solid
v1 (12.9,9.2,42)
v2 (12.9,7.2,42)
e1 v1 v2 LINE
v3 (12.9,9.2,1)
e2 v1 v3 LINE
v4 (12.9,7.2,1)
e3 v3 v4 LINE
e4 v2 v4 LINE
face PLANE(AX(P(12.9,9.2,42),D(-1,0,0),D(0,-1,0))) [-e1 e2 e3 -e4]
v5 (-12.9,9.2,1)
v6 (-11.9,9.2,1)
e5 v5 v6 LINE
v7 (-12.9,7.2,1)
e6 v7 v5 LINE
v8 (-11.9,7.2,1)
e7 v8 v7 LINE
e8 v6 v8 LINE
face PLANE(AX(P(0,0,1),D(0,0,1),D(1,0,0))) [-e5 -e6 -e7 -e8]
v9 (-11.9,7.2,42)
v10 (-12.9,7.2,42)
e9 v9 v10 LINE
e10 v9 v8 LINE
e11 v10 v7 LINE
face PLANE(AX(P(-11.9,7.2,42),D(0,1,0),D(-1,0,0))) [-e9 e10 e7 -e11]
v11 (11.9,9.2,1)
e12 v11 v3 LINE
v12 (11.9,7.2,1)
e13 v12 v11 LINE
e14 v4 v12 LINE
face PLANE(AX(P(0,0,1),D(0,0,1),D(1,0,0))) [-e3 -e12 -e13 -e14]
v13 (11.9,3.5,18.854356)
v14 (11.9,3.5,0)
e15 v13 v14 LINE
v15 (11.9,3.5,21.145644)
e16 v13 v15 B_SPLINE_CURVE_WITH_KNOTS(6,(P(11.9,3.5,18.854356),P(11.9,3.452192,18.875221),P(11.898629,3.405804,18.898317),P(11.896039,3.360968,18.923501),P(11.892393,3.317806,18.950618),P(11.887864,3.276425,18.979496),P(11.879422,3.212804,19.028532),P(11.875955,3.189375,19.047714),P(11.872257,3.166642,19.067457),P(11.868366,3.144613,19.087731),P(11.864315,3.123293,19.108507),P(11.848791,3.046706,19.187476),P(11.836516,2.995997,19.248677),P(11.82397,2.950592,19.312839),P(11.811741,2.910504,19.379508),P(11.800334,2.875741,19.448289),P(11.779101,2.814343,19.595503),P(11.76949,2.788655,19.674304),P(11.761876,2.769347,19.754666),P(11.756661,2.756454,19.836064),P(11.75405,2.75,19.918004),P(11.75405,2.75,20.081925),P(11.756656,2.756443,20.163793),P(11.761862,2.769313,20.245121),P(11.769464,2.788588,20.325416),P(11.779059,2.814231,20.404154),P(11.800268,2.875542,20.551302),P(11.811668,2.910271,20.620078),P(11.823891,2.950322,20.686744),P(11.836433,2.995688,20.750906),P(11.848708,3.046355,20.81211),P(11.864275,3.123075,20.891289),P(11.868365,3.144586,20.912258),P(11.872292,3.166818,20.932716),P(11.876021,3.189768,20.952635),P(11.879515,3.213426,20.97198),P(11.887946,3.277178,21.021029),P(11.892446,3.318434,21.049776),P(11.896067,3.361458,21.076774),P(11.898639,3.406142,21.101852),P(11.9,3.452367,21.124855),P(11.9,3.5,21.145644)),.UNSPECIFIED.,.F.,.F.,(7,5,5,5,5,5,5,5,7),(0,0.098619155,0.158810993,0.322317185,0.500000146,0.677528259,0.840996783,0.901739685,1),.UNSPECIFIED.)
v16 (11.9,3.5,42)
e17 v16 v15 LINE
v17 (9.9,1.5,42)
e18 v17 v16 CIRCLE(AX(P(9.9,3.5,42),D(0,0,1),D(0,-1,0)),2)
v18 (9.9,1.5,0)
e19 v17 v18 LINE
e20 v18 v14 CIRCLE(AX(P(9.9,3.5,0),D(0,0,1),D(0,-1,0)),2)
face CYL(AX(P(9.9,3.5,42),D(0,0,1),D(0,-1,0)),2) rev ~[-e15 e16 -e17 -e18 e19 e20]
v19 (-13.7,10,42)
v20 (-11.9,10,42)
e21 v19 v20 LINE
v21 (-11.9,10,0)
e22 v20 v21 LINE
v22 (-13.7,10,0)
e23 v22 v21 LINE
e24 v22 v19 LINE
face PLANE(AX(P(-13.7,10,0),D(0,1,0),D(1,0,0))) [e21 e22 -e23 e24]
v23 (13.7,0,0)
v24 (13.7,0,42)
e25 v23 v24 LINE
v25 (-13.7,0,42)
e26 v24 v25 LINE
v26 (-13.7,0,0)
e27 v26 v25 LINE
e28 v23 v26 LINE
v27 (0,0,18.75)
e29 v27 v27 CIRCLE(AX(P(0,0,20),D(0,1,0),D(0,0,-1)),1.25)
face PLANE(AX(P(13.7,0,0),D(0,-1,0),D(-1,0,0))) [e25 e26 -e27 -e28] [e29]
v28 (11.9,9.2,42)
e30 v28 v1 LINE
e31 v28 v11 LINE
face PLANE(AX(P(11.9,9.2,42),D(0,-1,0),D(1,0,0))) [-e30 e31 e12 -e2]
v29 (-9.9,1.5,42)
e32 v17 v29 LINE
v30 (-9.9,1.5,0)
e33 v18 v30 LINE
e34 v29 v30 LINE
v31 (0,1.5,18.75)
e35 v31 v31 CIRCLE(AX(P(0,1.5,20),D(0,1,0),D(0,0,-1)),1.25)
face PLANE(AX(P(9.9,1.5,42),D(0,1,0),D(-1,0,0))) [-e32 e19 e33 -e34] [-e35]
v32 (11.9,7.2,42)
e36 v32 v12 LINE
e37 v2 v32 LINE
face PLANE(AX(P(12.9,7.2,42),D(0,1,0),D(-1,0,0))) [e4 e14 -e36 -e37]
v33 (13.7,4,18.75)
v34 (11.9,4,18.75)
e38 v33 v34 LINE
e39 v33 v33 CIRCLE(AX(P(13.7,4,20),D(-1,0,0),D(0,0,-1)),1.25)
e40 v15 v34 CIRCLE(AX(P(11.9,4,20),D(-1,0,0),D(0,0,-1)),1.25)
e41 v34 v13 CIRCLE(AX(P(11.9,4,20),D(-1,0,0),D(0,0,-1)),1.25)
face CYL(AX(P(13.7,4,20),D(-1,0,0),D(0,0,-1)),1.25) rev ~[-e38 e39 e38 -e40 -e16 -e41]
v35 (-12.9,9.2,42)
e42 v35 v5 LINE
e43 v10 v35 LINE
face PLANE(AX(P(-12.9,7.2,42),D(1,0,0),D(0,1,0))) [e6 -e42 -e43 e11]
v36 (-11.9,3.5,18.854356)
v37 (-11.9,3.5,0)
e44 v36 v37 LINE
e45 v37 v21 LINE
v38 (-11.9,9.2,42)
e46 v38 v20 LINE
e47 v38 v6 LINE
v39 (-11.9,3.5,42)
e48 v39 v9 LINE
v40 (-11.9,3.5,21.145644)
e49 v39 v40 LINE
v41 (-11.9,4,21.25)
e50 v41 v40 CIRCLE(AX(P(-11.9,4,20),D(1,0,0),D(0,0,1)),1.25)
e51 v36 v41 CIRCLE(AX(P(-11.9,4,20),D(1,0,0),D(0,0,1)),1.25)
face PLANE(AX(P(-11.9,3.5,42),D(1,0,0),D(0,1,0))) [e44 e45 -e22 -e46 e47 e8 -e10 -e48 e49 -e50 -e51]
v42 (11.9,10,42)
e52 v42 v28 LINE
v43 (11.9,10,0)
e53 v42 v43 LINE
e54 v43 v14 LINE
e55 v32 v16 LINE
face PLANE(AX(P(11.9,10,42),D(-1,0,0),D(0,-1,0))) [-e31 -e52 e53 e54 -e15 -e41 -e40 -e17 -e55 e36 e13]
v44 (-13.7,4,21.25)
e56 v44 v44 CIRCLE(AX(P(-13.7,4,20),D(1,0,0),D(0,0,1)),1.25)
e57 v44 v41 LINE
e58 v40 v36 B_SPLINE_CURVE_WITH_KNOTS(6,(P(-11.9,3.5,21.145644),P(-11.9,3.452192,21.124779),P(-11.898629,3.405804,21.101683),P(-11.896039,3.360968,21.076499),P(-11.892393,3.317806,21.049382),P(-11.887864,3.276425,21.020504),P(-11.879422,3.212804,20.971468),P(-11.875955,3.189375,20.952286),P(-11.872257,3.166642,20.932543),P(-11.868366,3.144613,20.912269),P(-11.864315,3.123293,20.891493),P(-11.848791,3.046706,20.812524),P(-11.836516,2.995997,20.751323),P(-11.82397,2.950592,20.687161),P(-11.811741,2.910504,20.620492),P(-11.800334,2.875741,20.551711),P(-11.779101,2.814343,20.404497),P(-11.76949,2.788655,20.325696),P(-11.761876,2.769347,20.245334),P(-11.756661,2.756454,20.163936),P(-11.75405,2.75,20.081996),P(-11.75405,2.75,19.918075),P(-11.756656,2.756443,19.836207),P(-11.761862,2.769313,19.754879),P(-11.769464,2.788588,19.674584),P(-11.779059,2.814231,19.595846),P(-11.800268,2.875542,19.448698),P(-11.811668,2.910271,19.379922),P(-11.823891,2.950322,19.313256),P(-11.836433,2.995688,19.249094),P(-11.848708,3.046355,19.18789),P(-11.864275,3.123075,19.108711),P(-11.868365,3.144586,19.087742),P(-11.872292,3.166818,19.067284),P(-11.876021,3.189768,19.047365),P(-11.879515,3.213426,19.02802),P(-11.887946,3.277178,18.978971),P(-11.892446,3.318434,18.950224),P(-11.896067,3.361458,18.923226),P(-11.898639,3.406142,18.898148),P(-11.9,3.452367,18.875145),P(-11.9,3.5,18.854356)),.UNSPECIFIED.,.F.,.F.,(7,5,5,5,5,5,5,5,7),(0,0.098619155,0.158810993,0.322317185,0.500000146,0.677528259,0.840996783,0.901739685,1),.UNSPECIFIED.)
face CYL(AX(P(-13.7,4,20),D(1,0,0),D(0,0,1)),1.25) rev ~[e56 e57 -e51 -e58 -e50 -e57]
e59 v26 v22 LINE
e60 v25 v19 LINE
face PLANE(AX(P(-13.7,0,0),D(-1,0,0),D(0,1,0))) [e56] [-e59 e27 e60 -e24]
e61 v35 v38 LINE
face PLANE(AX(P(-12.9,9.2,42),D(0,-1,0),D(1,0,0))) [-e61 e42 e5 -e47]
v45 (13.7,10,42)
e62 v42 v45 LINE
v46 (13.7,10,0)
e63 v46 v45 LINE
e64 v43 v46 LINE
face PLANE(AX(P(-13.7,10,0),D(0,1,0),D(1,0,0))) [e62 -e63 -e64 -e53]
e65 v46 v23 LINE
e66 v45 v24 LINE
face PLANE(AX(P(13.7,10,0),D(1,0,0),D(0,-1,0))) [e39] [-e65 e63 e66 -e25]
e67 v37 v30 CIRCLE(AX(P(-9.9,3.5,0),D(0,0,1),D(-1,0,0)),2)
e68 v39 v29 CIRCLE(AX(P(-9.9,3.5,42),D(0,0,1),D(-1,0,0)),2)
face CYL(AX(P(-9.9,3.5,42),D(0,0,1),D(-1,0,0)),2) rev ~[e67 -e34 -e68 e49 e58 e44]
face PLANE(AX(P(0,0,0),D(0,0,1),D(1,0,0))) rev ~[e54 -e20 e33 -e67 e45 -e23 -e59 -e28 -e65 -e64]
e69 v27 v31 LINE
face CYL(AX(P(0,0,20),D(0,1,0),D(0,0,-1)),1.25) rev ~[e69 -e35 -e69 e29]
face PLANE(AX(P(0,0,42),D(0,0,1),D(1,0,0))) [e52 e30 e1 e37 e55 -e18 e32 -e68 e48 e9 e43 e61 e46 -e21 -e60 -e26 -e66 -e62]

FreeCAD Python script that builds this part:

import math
import FreeCAD as App
import Part
import Sketcher


def add_polygon(sketch, points):
    """Adds a closed chain of lines whose ends are joined by coincident constraints."""
    first, n = sketch.GeometryCount, len(points)
    for a, b in zip(points, points[1:] + points[:1]):
        sketch.addGeometry(Part.LineSegment(App.Vector(*a, 0), App.Vector(*b, 0)), False)
    for i in range(n):
        sketch.addConstraint(Sketcher.Constraint("Coincident", first + i, 2, first + (i + 1) % n, 1))

doc = App.newDocument("Part")
body = doc.addObject("PartDesign::Body", "Body")

# Sketch on XY plane
sketch1 = doc.addObject("Sketcher::SketchObject", "Sketch")
body.addObject(sketch1)
sketch1.AttachmentSupport = (doc.XY_Plane, [""])
sketch1.MapMode = "FlatFace"
add_polygon(sketch1, [(13.7, 10), (-13.7, 10), (-13.7, 0), (13.7, 0)])  # lines 0-3
sketch1.addConstraint([
    Sketcher.Constraint("Horizontal", 0),
    Sketcher.Constraint("Vertical", 1),
    Sketcher.Constraint("Horizontal", 2),
    Sketcher.Constraint("Vertical", 3),
    Sketcher.Constraint("Symmetric", 1, 2, 2, 2, -1, 1),
    Sketcher.Constraint("DistanceY", 1, 2, 1, 1, 10.0),
    Sketcher.Constraint("DistanceX", 0, 2, 0, 1, 27.4),
])
pad1 = doc.addObject("PartDesign::Pad", "Pad")
body.addObject(pad1)
pad1.Profile = sketch1
pad1.Length = 42

# Sketch on XY plane
sketch2 = doc.addObject("Sketcher::SketchObject", "Sketch001")
body.addObject(sketch2)
sketch2.AttachmentSupport = (doc.XY_Plane, [""])
sketch2.MapMode = "FlatFace"
sketch2.AttachmentOffset = App.Placement(App.Vector(0, 0, 42), App.Rotation())
sketch2.addGeometry([
    Part.LineSegment(App.Vector(11.9, 10, 0), App.Vector(-11.9, 10, 0)),  # 0
    Part.LineSegment(App.Vector(-11.9, 10, 0), App.Vector(-11.9, 3.5, 0)),  # 1
    Part.ArcOfCircle(Part.Circle(App.Vector(-9.9, 3.5, 0), App.Vector(0, 0, 1), 2), math.radians(180), math.radians(270)),  # 2
    Part.LineSegment(App.Vector(-9.9, 1.5, 0), App.Vector(9.9, 1.5, 0)),  # 3
    Part.ArcOfCircle(Part.Circle(App.Vector(9.9, 3.5, 0), App.Vector(0, 0, 1), 2), math.radians(-90), math.radians(0)),  # 4
    Part.LineSegment(App.Vector(11.9, 3.5, 0), App.Vector(11.9, 10, 0)),  # 5
], False)
sketch2.addConstraint([
    Sketcher.Constraint("Coincident", 0, 2, 1, 1),
    Sketcher.Constraint("Tangent", 1, 2, 2, 1),
    Sketcher.Constraint("Tangent", 2, 2, 3, 1),
    Sketcher.Constraint("Tangent", 3, 2, 4, 1),
    Sketcher.Constraint("Tangent", 4, 2, 5, 1),
    Sketcher.Constraint("Coincident", 5, 2, 0, 1),
    Sketcher.Constraint("Horizontal", 0),
    Sketcher.Constraint("Vertical", 1),
    Sketcher.Constraint("Horizontal", 3),
    Sketcher.Constraint("Vertical", 5),
    Sketcher.Constraint("Equal", 2, 4),
    Sketcher.Constraint("Radius", 2, 2.0),
    Sketcher.Constraint("DistanceX", 0, 2, 0, 1, 23.8),
    Sketcher.Constraint("DistanceY", 2, 2, 0, 2, 8.5),
    Sketcher.Constraint("DistanceY", -1, 1, 0, 2, 10.0),
    Sketcher.Constraint("DistanceX", 2, 3, -1, 1, 9.9),
])
pocket1 = doc.addObject("PartDesign::Pocket", "Pocket")
body.addObject(pocket1)
pocket1.Profile = sketch2
pocket1.Length = 42

# Sketch on XY plane
sketch3 = doc.addObject("Sketcher::SketchObject", "Sketch002")
body.addObject(sketch3)
sketch3.AttachmentSupport = (doc.XY_Plane, [""])
sketch3.MapMode = "FlatFace"
sketch3.AttachmentOffset = App.Placement(App.Vector(0, 0, 42), App.Rotation())
add_polygon(sketch3, [(-11.9, 9.2), (-12.9, 9.2), (-12.9, 7.2), (-11.9, 7.2)])  # lines 0-3
sketch3.addConstraint([
    Sketcher.Constraint("Horizontal", 0),
    Sketcher.Constraint("Vertical", 1),
    Sketcher.Constraint("Horizontal", 2),
    Sketcher.Constraint("Vertical", 3),
    Sketcher.Constraint("DistanceY", 1, 2, 1, 1, 2.0),
    Sketcher.Constraint("DistanceX", 0, 2, 0, 1, 1.0),
    Sketcher.Constraint("DistanceX", 0, 2, -1, 1, 12.9),
    Sketcher.Constraint("DistanceY", -1, 1, 0, 2, 9.2),
])
pocket2 = doc.addObject("PartDesign::Pocket", "Pocket001")
body.addObject(pocket2)
pocket2.Profile = sketch3
pocket2.Length = 41

# Sketch on XY plane
sketch4 = doc.addObject("Sketcher::SketchObject", "Sketch003")
body.addObject(sketch4)
sketch4.AttachmentSupport = (doc.XY_Plane, [""])
sketch4.MapMode = "FlatFace"
sketch4.AttachmentOffset = App.Placement(App.Vector(0, 0, 42), App.Rotation())
add_polygon(sketch4, [(12.9, 9.2), (11.9, 9.2), (11.9, 7.2), (12.9, 7.2)])  # lines 0-3
sketch4.addConstraint([
    Sketcher.Constraint("Horizontal", 0),
    Sketcher.Constraint("Vertical", 1),
    Sketcher.Constraint("Horizontal", 2),
    Sketcher.Constraint("Vertical", 3),
    Sketcher.Constraint("DistanceY", 1, 2, 1, 1, 2.0),
    Sketcher.Constraint("DistanceX", 0, 2, 0, 1, 1.0),
    Sketcher.Constraint("DistanceX", -1, 1, 0, 2, 11.9),
    Sketcher.Constraint("DistanceY", -1, 1, 0, 2, 9.2),
])
pocket3 = doc.addObject("PartDesign::Pocket", "Pocket002")
body.addObject(pocket3)
pocket3.Profile = sketch4
pocket3.Length = 41

# Sketch on YZ plane
sketch5 = doc.addObject("Sketcher::SketchObject", "Sketch004")
body.addObject(sketch5)
sketch5.AttachmentSupport = (doc.YZ_Plane, [""])
sketch5.MapMode = "FlatFace"
sketch5.AttachmentOffset = App.Placement(App.Vector(0, 0, 13.7), App.Rotation())
sketch5.addGeometry(Part.Circle(App.Vector(4, 20, 0), App.Vector(0, 0, 1), 1.25), False)
sketch5.addConstraint([
    Sketcher.Constraint("Diameter", 0, 2.5),
    Sketcher.Constraint("DistanceX", -1, 1, 0, 3, 4.0),
    Sketcher.Constraint("DistanceY", -1, 1, 0, 3, 20.0),
])
doc.recompute()
hole = doc.addObject("PartDesign::Hole", "Hole")
body.addObject(hole)
hole.Profile = sketch5
hole.ThreadType = "None"
hole.Diameter = 2.5
hole.DepthType = "Dimension"
hole.Depth = 8
hole.DrillPoint = "Angled"
hole.DrillPointAngle = 118

# Sketch on YZ plane
sketch6 = doc.addObject("Sketcher::SketchObject", "Sketch005")
body.addObject(sketch6)
sketch6.AttachmentSupport = (doc.YZ_Plane, [""])
sketch6.MapMode = "FlatFace"
sketch6.AttachmentOffset = App.Placement(App.Vector(0, 0, -13.7), App.Rotation())
sketch6.addGeometry(Part.Circle(App.Vector(4, 20, 0), App.Vector(0, 0, 1), 1.25), False)
sketch6.addConstraint([
    Sketcher.Constraint("Diameter", 0, 2.5),
    Sketcher.Constraint("DistanceX", -1, 1, 0, 3, 4.0),
    Sketcher.Constraint("DistanceY", -1, 1, 0, 3, 20.0),
])
doc.recompute()
hole2 = doc.addObject("PartDesign::Hole", "Hole001")
body.addObject(hole2)
hole2.Profile = sketch6
hole2.ThreadType = "None"
hole2.Diameter = 2.5
hole2.DepthType = "Dimension"
hole2.Depth = 8
hole2.DrillPoint = "Angled"
hole2.DrillPointAngle = 118
hole2.Reversed = True

# Sketch on XZ plane
sketch7 = doc.addObject("Sketcher::SketchObject", "Sketch006")
body.addObject(sketch7)
sketch7.AttachmentSupport = (doc.XZ_Plane, [""])
sketch7.MapMode = "FlatFace"
sketch7.addGeometry(Part.Circle(App.Vector(0, 20, 0), App.Vector(0, 0, 1), 1.25), False)
sketch7.addConstraint([
    Sketcher.Constraint("PointOnObject", 0, 3, -2),
    Sketcher.Constraint("Diameter", 0, 2.5),
    Sketcher.Constraint("DistanceY", -1, 1, 0, 3, 20.0),
])
doc.recompute()
hole3 = doc.addObject("PartDesign::Hole", "Hole002")
body.addObject(hole3)
hole3.Profile = sketch7
hole3.ThreadType = "None"
hole3.Diameter = 2.5
hole3.DepthType = "Dimension"
hole3.Depth = 8
hole3.DrillPoint = "Angled"
hole3.DrillPointAngle = 118

doc.recompute()
